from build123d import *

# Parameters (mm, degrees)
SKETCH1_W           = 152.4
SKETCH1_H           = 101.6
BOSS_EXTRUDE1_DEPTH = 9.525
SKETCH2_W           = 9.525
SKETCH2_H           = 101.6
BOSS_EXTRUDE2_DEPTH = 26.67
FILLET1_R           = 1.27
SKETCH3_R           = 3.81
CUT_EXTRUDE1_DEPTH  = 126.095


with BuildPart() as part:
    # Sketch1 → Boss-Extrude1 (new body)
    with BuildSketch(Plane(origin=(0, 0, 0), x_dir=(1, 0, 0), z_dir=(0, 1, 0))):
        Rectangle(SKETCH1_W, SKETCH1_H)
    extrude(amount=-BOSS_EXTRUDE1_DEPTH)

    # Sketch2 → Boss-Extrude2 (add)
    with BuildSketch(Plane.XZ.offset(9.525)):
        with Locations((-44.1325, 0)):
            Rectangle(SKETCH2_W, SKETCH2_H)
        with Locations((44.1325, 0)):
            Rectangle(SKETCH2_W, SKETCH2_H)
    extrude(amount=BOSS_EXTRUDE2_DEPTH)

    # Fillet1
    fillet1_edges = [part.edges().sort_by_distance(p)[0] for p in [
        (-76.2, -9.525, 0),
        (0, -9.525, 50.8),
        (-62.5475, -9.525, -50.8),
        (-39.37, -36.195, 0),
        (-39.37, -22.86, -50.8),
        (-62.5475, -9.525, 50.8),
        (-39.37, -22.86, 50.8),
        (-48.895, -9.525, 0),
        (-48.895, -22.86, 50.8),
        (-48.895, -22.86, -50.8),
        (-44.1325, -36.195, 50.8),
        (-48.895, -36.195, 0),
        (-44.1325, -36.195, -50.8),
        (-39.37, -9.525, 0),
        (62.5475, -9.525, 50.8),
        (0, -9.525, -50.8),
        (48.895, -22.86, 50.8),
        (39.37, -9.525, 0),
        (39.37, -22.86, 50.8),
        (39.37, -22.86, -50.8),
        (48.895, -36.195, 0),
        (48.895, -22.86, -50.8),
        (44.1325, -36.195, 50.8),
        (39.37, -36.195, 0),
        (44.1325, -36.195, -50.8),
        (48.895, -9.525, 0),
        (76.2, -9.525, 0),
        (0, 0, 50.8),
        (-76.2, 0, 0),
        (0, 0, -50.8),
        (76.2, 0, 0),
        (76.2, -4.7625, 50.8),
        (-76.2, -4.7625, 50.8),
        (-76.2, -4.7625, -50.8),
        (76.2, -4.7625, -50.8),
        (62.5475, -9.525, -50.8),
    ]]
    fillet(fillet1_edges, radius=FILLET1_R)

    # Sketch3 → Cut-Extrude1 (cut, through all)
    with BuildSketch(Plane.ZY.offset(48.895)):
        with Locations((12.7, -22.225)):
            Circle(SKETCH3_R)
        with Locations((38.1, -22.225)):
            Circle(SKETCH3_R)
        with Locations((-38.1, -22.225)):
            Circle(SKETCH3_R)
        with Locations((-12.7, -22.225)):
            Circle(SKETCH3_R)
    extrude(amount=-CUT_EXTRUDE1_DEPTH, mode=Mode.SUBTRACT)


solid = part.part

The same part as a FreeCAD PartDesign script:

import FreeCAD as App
import Part
import Sketcher
from FreeCAD import Vector
Q = App.Units.Quantity


def add_polygon(sketch, points):
    """Adds a closed chain of lines whose ends are joined by coincident constraints."""
    first, n = sketch.GeometryCount, len(points)
    for a, b in zip(points, points[1:] + points[:1]):
        sketch.addGeometry(Part.LineSegment(App.Vector(*a, 0), App.Vector(*b, 0)), False)
    for i in range(n):
        sketch.addConstraint(Sketcher.Constraint("Coincident", first + i, 2, first + (i + 1) % n, 1))

doc = App.newDocument("Part")
params = doc.addObject("Spreadsheet::Sheet", "Params")
for row, (alias, value) in enumerate([
    ("sketch1_width", "6 in"),
    ("sketch1_height", "4 in"),
    ("pad1_length", "0.375 in"),
    ("sketch2_height", "4 in"),
    ("sketch2_width", "0.375 in"),
    ("pad2_length", "1.05 in"),
    ("fillet_radius", "0.05 in"),
    ("sketch3_diameter", "0.3 in"),
], start=1):
    params.set(f"A{row}", alias)
    params.set(f"B{row}", "=" + value)
    params.setAlias(f"B{row}", alias)

body = doc.addObject("PartDesign::Body", "Body")

sketch1 = body.newObject("Sketcher::SketchObject", "Sketch")
sketch1.AttachmentSupport = (doc.getObject("XZ_Plane"), [""])
sketch1.MapMode = "FlatFace"
add_polygon(sketch1, [(-76, -51), (-76, 51), (76, 51), (76, -51)])
sketch1.addConstraint([
    Sketcher.Constraint("Vertical", 0),
    Sketcher.Constraint("Horizontal", 1),
    Sketcher.Constraint("Vertical", 2),
    Sketcher.Constraint("Horizontal", 3),
    Sketcher.Constraint("Symmetric", 0, 2, 2, 2, -1, 1),
    Sketcher.Constraint("DistanceX", 1, 1, 1, 2, Q("6 in")),
    Sketcher.Constraint("DistanceY", 0, 1, 0, 2, Q("4 in")),
])
sketch1.setExpression("Constraints[9]", "Params.sketch1_width")
sketch1.setExpression("Constraints[10]", "Params.sketch1_height")
pad1 = body.newObject("PartDesign::Pad", "Pad")
pad1.Profile = sketch1
pad1.setExpression("Length", "Params.pad1_length")

sketch2 = body.newObject("Sketcher::SketchObject", "Sketch001")
sketch2.AttachmentSupport = (doc.getObject("XZ_Plane"), [""])
sketch2.MapMode = "FlatFace"
sketch2.AttachmentOffset = App.Placement(Vector(0, 0, 0.375 * 25.4), App.Rotation())
add_polygon(sketch2, [(-49, 51), (-49, -51), (-39, -51), (-39, 51)])
add_polygon(sketch2, [(39, 51), (39, -51), (49, -51), (49, 51)])
sketch2.addConstraint([
    Sketcher.Constraint("Vertical", 0),
    Sketcher.Constraint("Horizontal", 1),
    Sketcher.Constraint("Vertical", 2),
    Sketcher.Constraint("Horizontal", 3),
    Sketcher.Constraint("Vertical", 4),
    Sketcher.Constraint("Horizontal", 5),
    Sketcher.Constraint("Vertical", 6),
    Sketcher.Constraint("Horizontal", 7),
    Sketcher.Constraint("Symmetric", 2, 2, 4, 2, -1, 1),
    Sketcher.Constraint("Symmetric", 0, 2, 6, 2, -1, 1),
    Sketcher.Constraint("Horizontal", 1, 2, 4, 2),
    Sketcher.Constraint("DistanceY", 0, 2, 0, 1, Q("4 in")),
    Sketcher.Constraint("DistanceX", 1, 2, 4, 2, Q("3.1 in")),
    Sketcher.Constraint("DistanceX", 1, 1, 1, 2, Q("0.375 in")),
])
sketch2.setExpression("Constraints[19]", "Params.sketch2_height")
sketch2.setExpression("Constraints[21]", "Params.sketch2_width")
pad2 = body.newObject("PartDesign::Pad", "Pad001")
pad2.Profile = sketch2
pad2.setExpression("Length", "Params.pad2_length")
doc.recompute()

fillet = body.newObject("PartDesign::Fillet", "Fillet")
fillet.Base = (pad2, ["Edge1"])
fillet.UseAllEdges = True
fillet.setExpression("Radius", "Params.fillet_radius")

sketch3 = body.newObject("Sketcher::SketchObject", "Sketch002")
sketch3.AttachmentSupport = (doc.getObject("YZ_Plane"), [""])
sketch3.MapMode = "FlatFace"
sketch3.AttachmentOffset = App.Placement(Vector(0, 0, -1.925 * 25.4), App.Rotation())
sketch3.addGeometry([
    Part.Circle(Vector(-22.2, 12.7, 0), Vector(0, 0, 1), 3.8),
    Part.Circle(Vector(-22.2, 38.1, 0), Vector(0, 0, 1), 3.8),
    Part.Circle(Vector(-22.2, -38.1, 0), Vector(0, 0, 1), 3.8),
    Part.Circle(Vector(-22.2, -12.7, 0), Vector(0, 0, 1), 3.8),
], False)
sketch3.addConstraint([
    Sketcher.Constraint("Equal", 0, 1),
    Sketcher.Constraint("Equal", 1, 2),
    Sketcher.Constraint("Equal", 2, 3),
    Sketcher.Constraint("Symmetric", 1, 3, 2, 3, -1),
    Sketcher.Constraint("Symmetric", 0, 3, 3, 3, -1),
    Sketcher.Constraint("Vertical", 0, 3, 1, 3),
    Sketcher.Constraint("Diameter", 0, Q("0.3 in")),
    Sketcher.Constraint("DistanceY", 0, 3, 1, 3, Q("1 in")),
    Sketcher.Constraint("DistanceY", 2, 3, 0, 3, Q("2 in")),
    Sketcher.Constraint("DistanceX", 0, 3, -1, 1, Q("0.875 in")),
])
sketch3.setExpression("Constraints[6]", "Params.sketch3_diameter")
pocket1 = body.newObject("PartDesign::Pocket", "Pocket")
pocket1.Profile = sketch3
pocket1.Type = "ThroughAll"
pocket1.Reversed = True

doc.recompute()
